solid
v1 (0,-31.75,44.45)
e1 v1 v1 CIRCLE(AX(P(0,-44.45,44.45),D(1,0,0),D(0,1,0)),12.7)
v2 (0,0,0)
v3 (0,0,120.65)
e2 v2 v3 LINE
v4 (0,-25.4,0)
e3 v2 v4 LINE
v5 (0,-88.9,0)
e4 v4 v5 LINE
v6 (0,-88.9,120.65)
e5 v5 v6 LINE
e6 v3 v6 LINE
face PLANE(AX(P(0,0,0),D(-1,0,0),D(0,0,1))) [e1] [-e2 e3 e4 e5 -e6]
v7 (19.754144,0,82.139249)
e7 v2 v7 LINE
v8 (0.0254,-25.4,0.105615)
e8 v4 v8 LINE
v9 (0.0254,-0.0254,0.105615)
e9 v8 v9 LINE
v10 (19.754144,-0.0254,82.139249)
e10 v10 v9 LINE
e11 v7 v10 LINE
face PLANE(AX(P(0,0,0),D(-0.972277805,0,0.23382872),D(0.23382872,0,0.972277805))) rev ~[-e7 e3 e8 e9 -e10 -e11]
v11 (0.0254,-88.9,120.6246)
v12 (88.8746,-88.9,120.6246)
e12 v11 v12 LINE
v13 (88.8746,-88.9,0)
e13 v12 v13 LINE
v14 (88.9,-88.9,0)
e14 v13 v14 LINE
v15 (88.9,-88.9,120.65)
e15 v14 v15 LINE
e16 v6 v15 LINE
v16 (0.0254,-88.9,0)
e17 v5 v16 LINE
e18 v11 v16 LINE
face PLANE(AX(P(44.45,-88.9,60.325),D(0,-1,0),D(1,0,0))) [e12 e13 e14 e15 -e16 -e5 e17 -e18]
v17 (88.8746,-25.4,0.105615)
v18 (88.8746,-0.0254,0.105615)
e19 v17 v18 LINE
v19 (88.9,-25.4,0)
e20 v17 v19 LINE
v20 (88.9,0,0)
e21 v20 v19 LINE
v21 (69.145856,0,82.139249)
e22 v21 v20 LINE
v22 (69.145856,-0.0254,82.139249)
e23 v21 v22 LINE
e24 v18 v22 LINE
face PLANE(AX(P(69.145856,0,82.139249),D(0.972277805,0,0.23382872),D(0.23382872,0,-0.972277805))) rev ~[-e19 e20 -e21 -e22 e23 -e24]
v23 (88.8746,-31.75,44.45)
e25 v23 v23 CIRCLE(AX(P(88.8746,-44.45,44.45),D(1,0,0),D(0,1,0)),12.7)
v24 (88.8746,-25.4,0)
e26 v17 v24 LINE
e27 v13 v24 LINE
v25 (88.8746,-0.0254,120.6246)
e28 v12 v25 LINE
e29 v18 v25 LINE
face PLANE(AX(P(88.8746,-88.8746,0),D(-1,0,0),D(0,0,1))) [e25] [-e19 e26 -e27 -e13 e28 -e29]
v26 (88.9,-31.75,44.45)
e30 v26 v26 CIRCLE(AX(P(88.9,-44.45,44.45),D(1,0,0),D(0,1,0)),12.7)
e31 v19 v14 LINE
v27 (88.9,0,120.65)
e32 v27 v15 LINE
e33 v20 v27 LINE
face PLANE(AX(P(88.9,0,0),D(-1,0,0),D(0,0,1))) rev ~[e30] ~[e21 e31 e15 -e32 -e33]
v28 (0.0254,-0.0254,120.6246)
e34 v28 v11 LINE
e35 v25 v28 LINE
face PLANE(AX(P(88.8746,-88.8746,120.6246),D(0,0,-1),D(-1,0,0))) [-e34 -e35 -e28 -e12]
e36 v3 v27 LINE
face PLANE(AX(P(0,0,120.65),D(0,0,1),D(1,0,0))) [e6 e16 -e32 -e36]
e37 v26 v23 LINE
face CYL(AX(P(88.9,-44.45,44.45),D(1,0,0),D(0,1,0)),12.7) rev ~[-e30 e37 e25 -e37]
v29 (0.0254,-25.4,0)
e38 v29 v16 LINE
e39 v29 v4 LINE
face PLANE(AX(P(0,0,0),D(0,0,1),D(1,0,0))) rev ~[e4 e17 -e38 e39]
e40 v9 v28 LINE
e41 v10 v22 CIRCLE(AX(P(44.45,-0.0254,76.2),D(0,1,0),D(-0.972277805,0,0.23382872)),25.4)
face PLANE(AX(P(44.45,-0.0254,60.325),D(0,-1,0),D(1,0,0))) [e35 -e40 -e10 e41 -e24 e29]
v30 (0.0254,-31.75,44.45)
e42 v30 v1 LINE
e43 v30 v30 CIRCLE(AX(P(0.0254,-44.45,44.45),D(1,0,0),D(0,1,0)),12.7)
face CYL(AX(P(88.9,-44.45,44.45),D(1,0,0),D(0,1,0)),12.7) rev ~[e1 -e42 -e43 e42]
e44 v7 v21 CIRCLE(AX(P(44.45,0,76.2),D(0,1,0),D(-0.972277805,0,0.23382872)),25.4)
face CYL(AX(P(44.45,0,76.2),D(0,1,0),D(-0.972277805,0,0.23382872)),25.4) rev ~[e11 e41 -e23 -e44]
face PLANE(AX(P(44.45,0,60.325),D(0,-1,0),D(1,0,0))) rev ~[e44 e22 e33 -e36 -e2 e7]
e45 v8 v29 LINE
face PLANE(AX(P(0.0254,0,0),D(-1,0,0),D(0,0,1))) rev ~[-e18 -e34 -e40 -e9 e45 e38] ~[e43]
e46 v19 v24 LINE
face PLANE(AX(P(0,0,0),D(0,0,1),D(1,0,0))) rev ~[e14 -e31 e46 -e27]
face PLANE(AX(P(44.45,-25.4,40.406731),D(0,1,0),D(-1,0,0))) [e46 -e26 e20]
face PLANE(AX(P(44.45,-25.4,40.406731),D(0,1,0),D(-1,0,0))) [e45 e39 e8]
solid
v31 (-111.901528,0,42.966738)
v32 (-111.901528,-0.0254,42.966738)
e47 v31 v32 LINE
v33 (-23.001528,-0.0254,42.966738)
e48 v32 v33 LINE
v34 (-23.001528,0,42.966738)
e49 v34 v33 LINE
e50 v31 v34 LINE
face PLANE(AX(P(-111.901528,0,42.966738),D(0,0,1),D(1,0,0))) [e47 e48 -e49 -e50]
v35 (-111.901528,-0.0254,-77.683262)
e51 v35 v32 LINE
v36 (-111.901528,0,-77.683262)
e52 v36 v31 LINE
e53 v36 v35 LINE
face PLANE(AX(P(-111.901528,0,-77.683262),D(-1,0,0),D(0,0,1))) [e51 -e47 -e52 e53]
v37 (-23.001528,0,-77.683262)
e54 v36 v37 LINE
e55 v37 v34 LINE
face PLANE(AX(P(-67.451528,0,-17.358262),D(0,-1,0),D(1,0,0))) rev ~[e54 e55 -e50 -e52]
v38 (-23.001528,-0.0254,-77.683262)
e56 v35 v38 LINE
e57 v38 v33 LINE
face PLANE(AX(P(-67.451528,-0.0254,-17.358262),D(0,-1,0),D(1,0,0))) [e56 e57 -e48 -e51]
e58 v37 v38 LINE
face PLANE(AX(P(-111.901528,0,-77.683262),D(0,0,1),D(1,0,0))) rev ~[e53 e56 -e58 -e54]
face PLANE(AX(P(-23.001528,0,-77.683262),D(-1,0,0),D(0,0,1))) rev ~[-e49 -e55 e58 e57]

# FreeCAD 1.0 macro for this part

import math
import FreeCAD as App
import Part
import Sketcher
Q = App.Units.Quantity


def faces_at(feature, points):
    """Names of the faces that lie closest to the given points."""
    faces = feature.Shape.Faces
    near = lambda p: min(range(len(faces)), key=lambda i: faces[i].distToShape(Part.Vertex(*p))[0])
    return sorted({f"Face{near(p) + 1}" for p in points})

doc = App.newDocument("Part")
body = doc.addObject("PartDesign::Body", "Body")

# Sketch on XZ plane
sketch1 = body.newObject("Sketcher::SketchObject", "Sketch")
sketch1.AttachmentSupport = (doc.getObject("XZ_Plane"), [""])
sketch1.MapMode = "FlatFace"
sketch1.addGeometry([
    Part.LineSegment(App.Vector(0, 121, 0), App.Vector(0, 0, 0)),
    Part.LineSegment(App.Vector(0, 0, 0), App.Vector(89, 0, 0)),
    Part.LineSegment(App.Vector(89, 0, 0), App.Vector(89, 121, 0)),
    Part.LineSegment(App.Vector(89, 121, 0), App.Vector(0, 121, 0)),
], False)
sketch1.addConstraint([
    Sketcher.Constraint("Coincident", 0, 2, 1, 1),
    Sketcher.Constraint("Coincident", 1, 2, 2, 1),
    Sketcher.Constraint("Coincident", 2, 2, 3, 1),
    Sketcher.Constraint("Coincident", 3, 2, 0, 1),
    Sketcher.Constraint("Vertical", 0),
    Sketcher.Constraint("Horizontal", 1),
    Sketcher.Constraint("Vertical", 2),
    Sketcher.Constraint("Horizontal", 3),
    Sketcher.Constraint("Coincident", 0, 2, -1, 1),
    Sketcher.Constraint("DistanceX", 1, 1, 1, 2, Q("3.5 in")),
    Sketcher.Constraint("DistanceY", 0, 2, 0, 1, Q("4.75 in")),
])
pad1 = body.newObject("PartDesign::Pad", "Pad")
pad1.Profile = sketch1
pad1.Length = Q("3.5 in")
doc.recompute()

thickness = body.newObject("PartDesign::Thickness", "Thickness")
thickness.Base = (pad1, faces_at(pad1, [(44.45, -44.45, 0)]))
thickness.Value = Q("0.001 in")
thickness.Reversed = True
thickness.Join = "Arc"

# Sketch on XZ plane
sketch2 = body.newObject("Sketcher::SketchObject", "Sketch001")
sketch2.AttachmentSupport = (doc.getObject("XZ_Plane"), [""])
sketch2.MapMode = "FlatFace"
sketch2.addGeometry([
    Part.LineSegment(App.Vector(89, 0, 0), App.Vector(0, 0, 0)),
    Part.LineSegment(App.Vector(0, 0, 0), App.Vector(20, 82, 0)),
    Part.ArcOfCircle(Part.Circle(App.Vector(44, 76, 0), App.Vector(0, 0, 1), 25), math.radians(14), math.radians(166)),
    Part.LineSegment(App.Vector(69, 82, 0), App.Vector(89, 0, 0)),
], False)
sketch2.addConstraint([
    Sketcher.Constraint("Coincident", 0, 2, 1, 1),
    Sketcher.Constraint("Tangent", 1, 2, 2, 2),
    Sketcher.Constraint("Tangent", 2, 1, 3, 1),
    Sketcher.Constraint("Coincident", 3, 2, 0, 1),
    Sketcher.Constraint("Horizontal", 0),
    Sketcher.Constraint("Coincident", 0, 2, -1, 1),
    Sketcher.Constraint("Horizontal", 1, 2, 2, 1),
    Sketcher.Constraint("Radius", 2, Q("1 in")),
    Sketcher.Constraint("DistanceX", 0, 2, 0, 1, Q("3.5 in")),
    Sketcher.Constraint("DistanceY", -1, 1, 2, 3, Q("3 in")),
])
pocket1 = body.newObject("PartDesign::Pocket", "Pocket")
pocket1.Profile = sketch2
pocket1.Length = Q("1 in")
pocket1.Reversed = True

# Sketch on YZ plane
sketch3 = body.newObject("Sketcher::SketchObject", "Sketch002")
sketch3.AttachmentSupport = (doc.getObject("YZ_Plane"), [""])
sketch3.MapMode = "FlatFace"
sketch3.AttachmentOffset = App.Placement(App.Vector(0, 0, 3.5 * 25.4), App.Rotation())
sketch3.addGeometry(Part.Circle(App.Vector(-44, 44, 0), App.Vector(0, 0, 1), 13), False)
sketch3.addConstraint([
    Sketcher.Constraint("Diameter", 0, Q("1 in")),
    Sketcher.Constraint("DistanceX", 0, 3, -1, 1, Q("1.75 in")),
    Sketcher.Constraint("DistanceY", -1, 1, 0, 3, Q("1.75 in")),
])
pocket2 = body.newObject("PartDesign::Pocket", "Pocket001")
pocket2.Profile = sketch3
pocket2.Length = Q("5 in")

# Sketch on XZ plane
sketch4 = body.newObject("Sketcher::SketchObject", "Sketch003")
sketch4.AttachmentSupport = (doc.getObject("XZ_Plane"), [""])
sketch4.MapMode = "FlatFace"
sketch4.AttachmentOffset = App.Placement(App.Vector(0, 0, 3.499 * 25.4), App.Rotation())
sketch4.addGeometry([
    Part.LineSegment(App.Vector(89, 121, 0), App.Vector(89, 0, 0)),
    Part.LineSegment(App.Vector(89, 0, 0), App.Vector(0, 0, 0)),
    Part.LineSegment(App.Vector(0, 0, 0), App.Vector(0, 121, 0)),
    Part.LineSegment(App.Vector(0, 121, 0), App.Vector(89, 121, 0)),
], False)
sketch4.addConstraint([
    Sketcher.Constraint("Coincident", 0, 2, 1, 1),
    Sketcher.Constraint("Coincident", 1, 2, 2, 1),
    Sketcher.Constraint("Coincident", 2, 2, 3, 1),
    Sketcher.Constraint("Coincident", 3, 2, 0, 1),
    Sketcher.Constraint("Vertical", 0),
    Sketcher.Constraint("Horizontal", 1),
    Sketcher.Constraint("Vertical", 2),
    Sketcher.Constraint("Horizontal", 3),
    Sketcher.Constraint("PointOnObject", 0, 2, -1),
    Sketcher.Constraint("DistanceX", 1, 2, 1, 1, Q("3.498 in")),
    Sketcher.Constraint("DistanceY", 0, 2, 0, 1, Q("4.749 in")),
    Sketcher.Constraint("DistanceX", -1, 1, 0, 2, Q("3.499 in")),
])
pocket3 = body.newObject("PartDesign::Pocket", "Pocket002")
pocket3.Profile = sketch4
pocket3.Length = Q("0.5 in")
pocket3.Reversed = True
body2 = doc.addObject("PartDesign::Body", "Body001")

# Sketch on XZ plane
sketch5 = body2.newObject("Sketcher::SketchObject", "Sketch004")
sketch5.AttachmentSupport = (doc.getObject("XZ_Plane001"), [""])
sketch5.MapMode = "FlatFace"
sketch5.addGeometry([
    Part.LineSegment(App.Vector(-112, 43, 0), App.Vector(-112, -78, 0)),
    Part.LineSegment(App.Vector(-112, -78, 0), App.Vector(-23, -78, 0)),
    Part.LineSegment(App.Vector(-23, -78, 0), App.Vector(-23, 43, 0)),
    Part.LineSegment(App.Vector(-23, 43, 0), App.Vector(-112, 43, 0)),
], False)
sketch5.addConstraint([
    Sketcher.Constraint("Coincident", 0, 2, 1, 1),
    Sketcher.Constraint("Coincident", 1, 2, 2, 1),
    Sketcher.Constraint("Coincident", 2, 2, 3, 1),
    Sketcher.Constraint("Coincident", 3, 2, 0, 1),
    Sketcher.Constraint("Vertical", 0),
    Sketcher.Constraint("Horizontal", 1),
    Sketcher.Constraint("Vertical", 2),
    Sketcher.Constraint("Horizontal", 3),
    Sketcher.Constraint("DistanceX", 1, 1, 1, 2, Q("3.5 in")),
    Sketcher.Constraint("DistanceY", 0, 2, 0, 1, Q("4.75 in")),
    Sketcher.Constraint("DistanceY", 0, 2, -1, 1, 77.683262),
    Sketcher.Constraint("DistanceX", 0, 2, -1, 1, 111.901528),
])
pad2 = body2.newObject("PartDesign::Pad", "Pad001")
pad2.Profile = sketch5
pad2.Length = Q("0.001 in")

doc.recompute()
